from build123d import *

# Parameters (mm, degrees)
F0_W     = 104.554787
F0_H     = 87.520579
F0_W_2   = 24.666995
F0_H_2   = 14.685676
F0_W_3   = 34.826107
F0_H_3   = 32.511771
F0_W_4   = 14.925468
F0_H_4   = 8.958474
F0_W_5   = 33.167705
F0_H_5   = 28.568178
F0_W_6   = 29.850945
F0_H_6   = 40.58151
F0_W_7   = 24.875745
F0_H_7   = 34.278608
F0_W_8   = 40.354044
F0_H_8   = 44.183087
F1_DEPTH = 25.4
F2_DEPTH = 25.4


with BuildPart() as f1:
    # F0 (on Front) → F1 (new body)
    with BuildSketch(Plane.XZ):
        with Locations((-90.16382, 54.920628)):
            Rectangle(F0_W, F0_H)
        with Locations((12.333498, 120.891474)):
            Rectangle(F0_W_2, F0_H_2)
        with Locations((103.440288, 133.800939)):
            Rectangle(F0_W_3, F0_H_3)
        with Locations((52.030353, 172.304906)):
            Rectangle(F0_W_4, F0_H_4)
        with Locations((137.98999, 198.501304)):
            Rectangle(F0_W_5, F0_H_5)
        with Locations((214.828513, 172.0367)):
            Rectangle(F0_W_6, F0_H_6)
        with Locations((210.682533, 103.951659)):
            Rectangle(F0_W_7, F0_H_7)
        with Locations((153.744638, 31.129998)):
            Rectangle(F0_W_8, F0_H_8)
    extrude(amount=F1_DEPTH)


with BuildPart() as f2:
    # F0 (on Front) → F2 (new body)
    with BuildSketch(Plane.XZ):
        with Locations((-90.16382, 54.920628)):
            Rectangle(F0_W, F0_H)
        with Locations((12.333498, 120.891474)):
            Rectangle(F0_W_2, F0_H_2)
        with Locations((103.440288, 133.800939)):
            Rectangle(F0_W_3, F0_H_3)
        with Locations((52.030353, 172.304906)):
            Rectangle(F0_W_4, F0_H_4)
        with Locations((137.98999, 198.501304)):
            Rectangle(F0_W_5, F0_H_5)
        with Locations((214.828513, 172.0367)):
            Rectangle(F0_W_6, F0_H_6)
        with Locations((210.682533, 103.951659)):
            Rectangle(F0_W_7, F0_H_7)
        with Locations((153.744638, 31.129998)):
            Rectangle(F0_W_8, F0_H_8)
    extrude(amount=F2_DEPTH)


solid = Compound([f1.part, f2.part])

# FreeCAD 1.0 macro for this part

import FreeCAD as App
import Part
import Sketcher

V = App.Vector
Q = App.Units.Quantity


def add_polygon(sketch, points):
    """Adds a closed chain of lines whose ends are joined by coincident constraints."""
    first, n = sketch.GeometryCount, len(points)
    for a, b in zip(points, points[1:] + points[:1]):
        sketch.addGeometry(Part.LineSegment(App.Vector(*a, 0), App.Vector(*b, 0)), False)
    for i in range(n):
        sketch.addConstraint(Sketcher.Constraint("Coincident", first + i, 2, first + (i + 1) % n, 1))

doc = App.newDocument("Part")
body = doc.addObject("PartDesign::Body", "Body")
body.AllowCompound = True

# Sketch on XZ plane
sketch1 = doc.addObject("Sketcher::SketchObject", "Sketch")
body.addObject(sketch1)
sketch1.AttachmentSupport = (doc.XZ_Plane, [""])
sketch1.MapMode = "FlatFace"
add_polygon(sketch1, [(-142, 99), (-142, 11), (-38, 11), (-38, 99)])  # lines 0-3
add_polygon(sketch1, [(0, 128), (0, 114), (25, 114), (25, 128)])  # lines 4-7
add_polygon(sketch1, [(86, 150), (86, 118), (121, 118), (121, 150)])  # lines 8-11
add_polygon(sketch1, [(45, 177), (45, 168), (59, 168), (59, 177)])  # lines 12-15
add_polygon(sketch1, [(121, 213), (121, 184), (155, 184), (155, 213)])  # lines 16-19
add_polygon(sketch1, [(200, 192), (200, 152), (230, 152), (230, 192)])  # lines 20-23
add_polygon(sketch1, [(198, 121), (198, 87), (223, 87), (223, 121)])  # lines 24-27
add_polygon(sketch1, [(134, 53), (134, 9), (174, 9), (174, 53)])  # lines 28-31
sketch1.addConstraint(Sketcher.Constraint("Vertical", 0))
sketch1.addConstraint(Sketcher.Constraint("Horizontal", 1))
sketch1.addConstraint(Sketcher.Constraint("Vertical", 2))
sketch1.addConstraint(Sketcher.Constraint("Horizontal", 3))
sketch1.addConstraint(Sketcher.Constraint("Vertical", 4))
sketch1.addConstraint(Sketcher.Constraint("Horizontal", 5))
sketch1.addConstraint(Sketcher.Constraint("Vertical", 6))
sketch1.addConstraint(Sketcher.Constraint("Horizontal", 7))
sketch1.addConstraint(Sketcher.Constraint("Vertical", 8))
sketch1.addConstraint(Sketcher.Constraint("Horizontal", 9))
sketch1.addConstraint(Sketcher.Constraint("Vertical", 10))
sketch1.addConstraint(Sketcher.Constraint("Horizontal", 11))
sketch1.addConstraint(Sketcher.Constraint("Vertical", 12))
sketch1.addConstraint(Sketcher.Constraint("Horizontal", 13))
sketch1.addConstraint(Sketcher.Constraint("Vertical", 14))
sketch1.addConstraint(Sketcher.Constraint("Horizontal", 15))
sketch1.addConstraint(Sketcher.Constraint("Vertical", 16))
sketch1.addConstraint(Sketcher.Constraint("Horizontal", 17))
sketch1.addConstraint(Sketcher.Constraint("Vertical", 18))
sketch1.addConstraint(Sketcher.Constraint("Horizontal", 19))
sketch1.addConstraint(Sketcher.Constraint("Vertical", 20))
sketch1.addConstraint(Sketcher.Constraint("Horizontal", 21))
sketch1.addConstraint(Sketcher.Constraint("Vertical", 22))
sketch1.addConstraint(Sketcher.Constraint("Horizontal", 23))
sketch1.addConstraint(Sketcher.Constraint("Vertical", 24))
sketch1.addConstraint(Sketcher.Constraint("Horizontal", 25))
sketch1.addConstraint(Sketcher.Constraint("Vertical", 26))
sketch1.addConstraint(Sketcher.Constraint("Horizontal", 27))
sketch1.addConstraint(Sketcher.Constraint("Vertical", 28))
sketch1.addConstraint(Sketcher.Constraint("Horizontal", 29))
sketch1.addConstraint(Sketcher.Constraint("Vertical", 30))
sketch1.addConstraint(Sketcher.Constraint("Horizontal", 31))
sketch1.addConstraint(Sketcher.Constraint("PointOnObject", 4, 2, -2))
sketch1.addConstraint(Sketcher.Constraint("DistanceX", 13, 1, 13, 2, Q("14.925468 mm")))
sketch1.addConstraint(Sketcher.Constraint("DistanceY", 0, 2, 0, 1, Q("87.520579 mm")))
sketch1.addConstraint(Sketcher.Constraint("DistanceY", 8, 2, 8, 1, Q("32.511771 mm")))
sketch1.addConstraint(Sketcher.Constraint("DistanceY", 20, 2, 20, 1, Q("40.58151 mm")))
sketch1.addConstraint(Sketcher.Constraint("DistanceY", 24, 2, 24, 1, Q("34.278608 mm")))
sketch1.addConstraint(Sketcher.Constraint("DistanceX", 10, 2, 17, 2, Q("33.720501 mm")))
sketch1.addConstraint(Sketcher.Constraint("DistanceX", 10, 2, 20, 2, Q("79.049699 mm")))
sketch1.addConstraint(Sketcher.Constraint("DistanceY", 24, 2, 9, 2, Q("30.732698 mm")))
sketch1.addConstraint(Sketcher.Constraint("DistanceY", 24, 2, 23, 2, Q("105.5151 mm")))
sketch1.addConstraint(Sketcher.Constraint("DistanceY", 28, 2, 24, 2, Q("77.7739 mm")))
sketch1.addConstraint(Sketcher.Constraint("DistanceX", 29, 2, 24, 2, Q("24.323001 mm")))
sketch1.addConstraint(Sketcher.Constraint("DistanceX", 1, 1, 1, 2, Q("104.554787 mm")))
sketch1.addConstraint(Sketcher.Constraint("DistanceX", 5, 1, 5, 2, Q("24.666995 mm")))
sketch1.addConstraint(Sketcher.Constraint("DistanceX", 9, 1, 9, 2, Q("34.826107 mm")))
sketch1.addConstraint(Sketcher.Constraint("DistanceX", 17, 1, 17, 2, Q("33.167705 mm")))
sketch1.addConstraint(Sketcher.Constraint("DistanceX", 21, 1, 21, 2, Q("29.850945 mm")))
sketch1.addConstraint(Sketcher.Constraint("DistanceX", 25, 1, 25, 2, Q("24.875745 mm")))
sketch1.addConstraint(Sketcher.Constraint("DistanceX", 29, 1, 29, 2, Q("40.354044 mm")))
sketch1.addConstraint(Sketcher.Constraint("DistanceY", 4, 2, 4, 1, Q("14.685676 mm")))
sketch1.addConstraint(Sketcher.Constraint("DistanceY", 12, 2, 12, 1, Q("8.958474 mm")))
sketch1.addConstraint(Sketcher.Constraint("DistanceY", 16, 2, 16, 1, Q("28.568178 mm")))
sketch1.addConstraint(Sketcher.Constraint("DistanceY", 28, 2, 28, 1, Q("44.183087 mm")))
sketch1.addConstraint(Sketcher.Constraint("DistanceY", -1, 1, 0, 2, Q("11.160338 mm")))
sketch1.addConstraint(Sketcher.Constraint("DistanceY", -1, 1, 6, 2, Q("128.234312 mm")))
sketch1.addConstraint(Sketcher.Constraint("DistanceX", -1, 1, 9, 2, Q("120.853341 mm")))
sketch1.addConstraint(Sketcher.Constraint("DistanceX", -1, 1, 12, 2, Q("44.567619 mm")))
sketch1.addConstraint(Sketcher.Constraint("DistanceY", -1, 1, 12, 2, Q("167.825669 mm")))
sketch1.addConstraint(Sketcher.Constraint("DistanceX", -1, 1, 24, 2, Q("198.244661 mm")))
sketch1.addConstraint(Sketcher.Constraint("DistanceY", -1, 1, 30, 2, Q("53.221542 mm")))
sketch1.addConstraint(Sketcher.Constraint("DistanceX", 2, 2, 5, 2, Q("62.553422 mm")))
sketch1.addConstraint(Sketcher.Constraint("DistanceY", 10, 2, 16, 2, Q("34.160391 mm")))
pad1 = doc.addObject("PartDesign::Pad", "Pad")
body.addObject(pad1)
pad1.Profile = sketch1
pad1.Length = Q("1 in")
body2 = doc.addObject("PartDesign::Body", "Body001")
body2.AllowCompound = True

# Sketch on XZ plane
sketch2 = doc.addObject("Sketcher::SketchObject", "Sketch001")
body2.addObject(sketch2)
sketch2.AttachmentSupport = (doc.getObject("XZ_Plane001"), [""])
sketch2.MapMode = "FlatFace"
add_polygon(sketch2, [(-142, 99), (-142, 11), (-38, 11), (-38, 99)])  # lines 0-3
add_polygon(sketch2, [(0, 128), (0, 114), (25, 114), (25, 128)])  # lines 4-7
add_polygon(sketch2, [(86, 150), (86, 118), (121, 118), (121, 150)])  # lines 8-11
add_polygon(sketch2, [(45, 177), (45, 168), (59, 168), (59, 177)])  # lines 12-15
add_polygon(sketch2, [(121, 213), (121, 184), (155, 184), (155, 213)])  # lines 16-19
add_polygon(sketch2, [(200, 192), (200, 152), (230, 152), (230, 192)])  # lines 20-23
add_polygon(sketch2, [(198, 121), (198, 87), (223, 87), (223, 121)])  # lines 24-27
add_polygon(sketch2, [(134, 53), (134, 9), (174, 9), (174, 53)])  # lines 28-31
sketch2.addConstraint(Sketcher.Constraint("Vertical", 0))
sketch2.addConstraint(Sketcher.Constraint("Horizontal", 1))
sketch2.addConstraint(Sketcher.Constraint("Vertical", 2))
sketch2.addConstraint(Sketcher.Constraint("Horizontal", 3))
sketch2.addConstraint(Sketcher.Constraint("Vertical", 4))
sketch2.addConstraint(Sketcher.Constraint("Horizontal", 5))
sketch2.addConstraint(Sketcher.Constraint("Vertical", 6))
sketch2.addConstraint(Sketcher.Constraint("Horizontal", 7))
sketch2.addConstraint(Sketcher.Constraint("Vertical", 8))
sketch2.addConstraint(Sketcher.Constraint("Horizontal", 9))
sketch2.addConstraint(Sketcher.Constraint("Vertical", 10))
sketch2.addConstraint(Sketcher.Constraint("Horizontal", 11))
sketch2.addConstraint(Sketcher.Constraint("Vertical", 12))
sketch2.addConstraint(Sketcher.Constraint("Horizontal", 13))
sketch2.addConstraint(Sketcher.Constraint("Vertical", 14))
sketch2.addConstraint(Sketcher.Constraint("Horizontal", 15))
sketch2.addConstraint(Sketcher.Constraint("Vertical", 16))
sketch2.addConstraint(Sketcher.Constraint("Horizontal", 17))
sketch2.addConstraint(Sketcher.Constraint("Vertical", 18))
sketch2.addConstraint(Sketcher.Constraint("Horizontal", 19))
sketch2.addConstraint(Sketcher.Constraint("Vertical", 20))
sketch2.addConstraint(Sketcher.Constraint("Horizontal", 21))
sketch2.addConstraint(Sketcher.Constraint("Vertical", 22))
sketch2.addConstraint(Sketcher.Constraint("Horizontal", 23))
sketch2.addConstraint(Sketcher.Constraint("Vertical", 24))
sketch2.addConstraint(Sketcher.Constraint("Horizontal", 25))
sketch2.addConstraint(Sketcher.Constraint("Vertical", 26))
sketch2.addConstraint(Sketcher.Constraint("Horizontal", 27))
sketch2.addConstraint(Sketcher.Constraint("Vertical", 28))
sketch2.addConstraint(Sketcher.Constraint("Horizontal", 29))
sketch2.addConstraint(Sketcher.Constraint("Vertical", 30))
sketch2.addConstraint(Sketcher.Constraint("Horizontal", 31))
sketch2.addConstraint(Sketcher.Constraint("PointOnObject", 4, 2, -2))
sketch2.addConstraint(Sketcher.Constraint("DistanceX", 13, 1, 13, 2, Q("14.925468 mm")))
sketch2.addConstraint(Sketcher.Constraint("DistanceY", 0, 2, 0, 1, Q("87.520579 mm")))
sketch2.addConstraint(Sketcher.Constraint("DistanceY", 8, 2, 8, 1, Q("32.511771 mm")))
sketch2.addConstraint(Sketcher.Constraint("DistanceY", 20, 2, 20, 1, Q("40.58151 mm")))
sketch2.addConstraint(Sketcher.Constraint("DistanceY", 24, 2, 24, 1, Q("34.278608 mm")))
sketch2.addConstraint(Sketcher.Constraint("DistanceX", 10, 2, 17, 2, Q("33.720501 mm")))
sketch2.addConstraint(Sketcher.Constraint("DistanceX", 10, 2, 20, 2, Q("79.049699 mm")))
sketch2.addConstraint(Sketcher.Constraint("DistanceY", 24, 2, 9, 2, Q("30.732698 mm")))
sketch2.addConstraint(Sketcher.Constraint("DistanceY", 24, 2, 23, 2, Q("105.5151 mm")))
sketch2.addConstraint(Sketcher.Constraint("DistanceY", 28, 2, 24, 2, Q("77.7739 mm")))
sketch2.addConstraint(Sketcher.Constraint("DistanceX", 29, 2, 24, 2, Q("24.323001 mm")))
sketch2.addConstraint(Sketcher.Constraint("DistanceX", 1, 1, 1, 2, Q("104.554787 mm")))
sketch2.addConstraint(Sketcher.Constraint("DistanceX", 5, 1, 5, 2, Q("24.666995 mm")))
sketch2.addConstraint(Sketcher.Constraint("DistanceX", 9, 1, 9, 2, Q("34.826107 mm")))
sketch2.addConstraint(Sketcher.Constraint("DistanceX", 17, 1, 17, 2, Q("33.167705 mm")))
sketch2.addConstraint(Sketcher.Constraint("DistanceX", 21, 1, 21, 2, Q("29.850945 mm")))
sketch2.addConstraint(Sketcher.Constraint("DistanceX", 25, 1, 25, 2, Q("24.875745 mm")))
sketch2.addConstraint(Sketcher.Constraint("DistanceX", 29, 1, 29, 2, Q("40.354044 mm")))
sketch2.addConstraint(Sketcher.Constraint("DistanceY", 4, 2, 4, 1, Q("14.685676 mm")))
sketch2.addConstraint(Sketcher.Constraint("DistanceY", 12, 2, 12, 1, Q("8.958474 mm")))
sketch2.addConstraint(Sketcher.Constraint("DistanceY", 16, 2, 16, 1, Q("28.568178 mm")))
sketch2.addConstraint(Sketcher.Constraint("DistanceY", 28, 2, 28, 1, Q("44.183087 mm")))
sketch2.addConstraint(Sketcher.Constraint("DistanceY", -1, 1, 0, 2, Q("11.160338 mm")))
sketch2.addConstraint(Sketcher.Constraint("DistanceY", -1, 1, 6, 2, Q("128.234312 mm")))
sketch2.addConstraint(Sketcher.Constraint("DistanceX", -1, 1, 9, 2, Q("120.853341 mm")))
sketch2.addConstraint(Sketcher.Constraint("DistanceX", -1, 1, 12, 2, Q("44.567619 mm")))
sketch2.addConstraint(Sketcher.Constraint("DistanceY", -1, 1, 12, 2, Q("167.825669 mm")))
sketch2.addConstraint(Sketcher.Constraint("DistanceX", -1, 1, 24, 2, Q("198.244661 mm")))
sketch2.addConstraint(Sketcher.Constraint("DistanceY", -1, 1, 30, 2, Q("53.221542 mm")))
sketch2.addConstraint(Sketcher.Constraint("DistanceX", 2, 2, 5, 2, Q("62.553422 mm")))
sketch2.addConstraint(Sketcher.Constraint("DistanceY", 10, 2, 16, 2, Q("34.160391 mm")))
pad2 = doc.addObject("PartDesign::Pad", "Pad001")
body2.addObject(pad2)
pad2.Profile = sketch2
pad2.Length = Q("1 in")

doc.recompute()
